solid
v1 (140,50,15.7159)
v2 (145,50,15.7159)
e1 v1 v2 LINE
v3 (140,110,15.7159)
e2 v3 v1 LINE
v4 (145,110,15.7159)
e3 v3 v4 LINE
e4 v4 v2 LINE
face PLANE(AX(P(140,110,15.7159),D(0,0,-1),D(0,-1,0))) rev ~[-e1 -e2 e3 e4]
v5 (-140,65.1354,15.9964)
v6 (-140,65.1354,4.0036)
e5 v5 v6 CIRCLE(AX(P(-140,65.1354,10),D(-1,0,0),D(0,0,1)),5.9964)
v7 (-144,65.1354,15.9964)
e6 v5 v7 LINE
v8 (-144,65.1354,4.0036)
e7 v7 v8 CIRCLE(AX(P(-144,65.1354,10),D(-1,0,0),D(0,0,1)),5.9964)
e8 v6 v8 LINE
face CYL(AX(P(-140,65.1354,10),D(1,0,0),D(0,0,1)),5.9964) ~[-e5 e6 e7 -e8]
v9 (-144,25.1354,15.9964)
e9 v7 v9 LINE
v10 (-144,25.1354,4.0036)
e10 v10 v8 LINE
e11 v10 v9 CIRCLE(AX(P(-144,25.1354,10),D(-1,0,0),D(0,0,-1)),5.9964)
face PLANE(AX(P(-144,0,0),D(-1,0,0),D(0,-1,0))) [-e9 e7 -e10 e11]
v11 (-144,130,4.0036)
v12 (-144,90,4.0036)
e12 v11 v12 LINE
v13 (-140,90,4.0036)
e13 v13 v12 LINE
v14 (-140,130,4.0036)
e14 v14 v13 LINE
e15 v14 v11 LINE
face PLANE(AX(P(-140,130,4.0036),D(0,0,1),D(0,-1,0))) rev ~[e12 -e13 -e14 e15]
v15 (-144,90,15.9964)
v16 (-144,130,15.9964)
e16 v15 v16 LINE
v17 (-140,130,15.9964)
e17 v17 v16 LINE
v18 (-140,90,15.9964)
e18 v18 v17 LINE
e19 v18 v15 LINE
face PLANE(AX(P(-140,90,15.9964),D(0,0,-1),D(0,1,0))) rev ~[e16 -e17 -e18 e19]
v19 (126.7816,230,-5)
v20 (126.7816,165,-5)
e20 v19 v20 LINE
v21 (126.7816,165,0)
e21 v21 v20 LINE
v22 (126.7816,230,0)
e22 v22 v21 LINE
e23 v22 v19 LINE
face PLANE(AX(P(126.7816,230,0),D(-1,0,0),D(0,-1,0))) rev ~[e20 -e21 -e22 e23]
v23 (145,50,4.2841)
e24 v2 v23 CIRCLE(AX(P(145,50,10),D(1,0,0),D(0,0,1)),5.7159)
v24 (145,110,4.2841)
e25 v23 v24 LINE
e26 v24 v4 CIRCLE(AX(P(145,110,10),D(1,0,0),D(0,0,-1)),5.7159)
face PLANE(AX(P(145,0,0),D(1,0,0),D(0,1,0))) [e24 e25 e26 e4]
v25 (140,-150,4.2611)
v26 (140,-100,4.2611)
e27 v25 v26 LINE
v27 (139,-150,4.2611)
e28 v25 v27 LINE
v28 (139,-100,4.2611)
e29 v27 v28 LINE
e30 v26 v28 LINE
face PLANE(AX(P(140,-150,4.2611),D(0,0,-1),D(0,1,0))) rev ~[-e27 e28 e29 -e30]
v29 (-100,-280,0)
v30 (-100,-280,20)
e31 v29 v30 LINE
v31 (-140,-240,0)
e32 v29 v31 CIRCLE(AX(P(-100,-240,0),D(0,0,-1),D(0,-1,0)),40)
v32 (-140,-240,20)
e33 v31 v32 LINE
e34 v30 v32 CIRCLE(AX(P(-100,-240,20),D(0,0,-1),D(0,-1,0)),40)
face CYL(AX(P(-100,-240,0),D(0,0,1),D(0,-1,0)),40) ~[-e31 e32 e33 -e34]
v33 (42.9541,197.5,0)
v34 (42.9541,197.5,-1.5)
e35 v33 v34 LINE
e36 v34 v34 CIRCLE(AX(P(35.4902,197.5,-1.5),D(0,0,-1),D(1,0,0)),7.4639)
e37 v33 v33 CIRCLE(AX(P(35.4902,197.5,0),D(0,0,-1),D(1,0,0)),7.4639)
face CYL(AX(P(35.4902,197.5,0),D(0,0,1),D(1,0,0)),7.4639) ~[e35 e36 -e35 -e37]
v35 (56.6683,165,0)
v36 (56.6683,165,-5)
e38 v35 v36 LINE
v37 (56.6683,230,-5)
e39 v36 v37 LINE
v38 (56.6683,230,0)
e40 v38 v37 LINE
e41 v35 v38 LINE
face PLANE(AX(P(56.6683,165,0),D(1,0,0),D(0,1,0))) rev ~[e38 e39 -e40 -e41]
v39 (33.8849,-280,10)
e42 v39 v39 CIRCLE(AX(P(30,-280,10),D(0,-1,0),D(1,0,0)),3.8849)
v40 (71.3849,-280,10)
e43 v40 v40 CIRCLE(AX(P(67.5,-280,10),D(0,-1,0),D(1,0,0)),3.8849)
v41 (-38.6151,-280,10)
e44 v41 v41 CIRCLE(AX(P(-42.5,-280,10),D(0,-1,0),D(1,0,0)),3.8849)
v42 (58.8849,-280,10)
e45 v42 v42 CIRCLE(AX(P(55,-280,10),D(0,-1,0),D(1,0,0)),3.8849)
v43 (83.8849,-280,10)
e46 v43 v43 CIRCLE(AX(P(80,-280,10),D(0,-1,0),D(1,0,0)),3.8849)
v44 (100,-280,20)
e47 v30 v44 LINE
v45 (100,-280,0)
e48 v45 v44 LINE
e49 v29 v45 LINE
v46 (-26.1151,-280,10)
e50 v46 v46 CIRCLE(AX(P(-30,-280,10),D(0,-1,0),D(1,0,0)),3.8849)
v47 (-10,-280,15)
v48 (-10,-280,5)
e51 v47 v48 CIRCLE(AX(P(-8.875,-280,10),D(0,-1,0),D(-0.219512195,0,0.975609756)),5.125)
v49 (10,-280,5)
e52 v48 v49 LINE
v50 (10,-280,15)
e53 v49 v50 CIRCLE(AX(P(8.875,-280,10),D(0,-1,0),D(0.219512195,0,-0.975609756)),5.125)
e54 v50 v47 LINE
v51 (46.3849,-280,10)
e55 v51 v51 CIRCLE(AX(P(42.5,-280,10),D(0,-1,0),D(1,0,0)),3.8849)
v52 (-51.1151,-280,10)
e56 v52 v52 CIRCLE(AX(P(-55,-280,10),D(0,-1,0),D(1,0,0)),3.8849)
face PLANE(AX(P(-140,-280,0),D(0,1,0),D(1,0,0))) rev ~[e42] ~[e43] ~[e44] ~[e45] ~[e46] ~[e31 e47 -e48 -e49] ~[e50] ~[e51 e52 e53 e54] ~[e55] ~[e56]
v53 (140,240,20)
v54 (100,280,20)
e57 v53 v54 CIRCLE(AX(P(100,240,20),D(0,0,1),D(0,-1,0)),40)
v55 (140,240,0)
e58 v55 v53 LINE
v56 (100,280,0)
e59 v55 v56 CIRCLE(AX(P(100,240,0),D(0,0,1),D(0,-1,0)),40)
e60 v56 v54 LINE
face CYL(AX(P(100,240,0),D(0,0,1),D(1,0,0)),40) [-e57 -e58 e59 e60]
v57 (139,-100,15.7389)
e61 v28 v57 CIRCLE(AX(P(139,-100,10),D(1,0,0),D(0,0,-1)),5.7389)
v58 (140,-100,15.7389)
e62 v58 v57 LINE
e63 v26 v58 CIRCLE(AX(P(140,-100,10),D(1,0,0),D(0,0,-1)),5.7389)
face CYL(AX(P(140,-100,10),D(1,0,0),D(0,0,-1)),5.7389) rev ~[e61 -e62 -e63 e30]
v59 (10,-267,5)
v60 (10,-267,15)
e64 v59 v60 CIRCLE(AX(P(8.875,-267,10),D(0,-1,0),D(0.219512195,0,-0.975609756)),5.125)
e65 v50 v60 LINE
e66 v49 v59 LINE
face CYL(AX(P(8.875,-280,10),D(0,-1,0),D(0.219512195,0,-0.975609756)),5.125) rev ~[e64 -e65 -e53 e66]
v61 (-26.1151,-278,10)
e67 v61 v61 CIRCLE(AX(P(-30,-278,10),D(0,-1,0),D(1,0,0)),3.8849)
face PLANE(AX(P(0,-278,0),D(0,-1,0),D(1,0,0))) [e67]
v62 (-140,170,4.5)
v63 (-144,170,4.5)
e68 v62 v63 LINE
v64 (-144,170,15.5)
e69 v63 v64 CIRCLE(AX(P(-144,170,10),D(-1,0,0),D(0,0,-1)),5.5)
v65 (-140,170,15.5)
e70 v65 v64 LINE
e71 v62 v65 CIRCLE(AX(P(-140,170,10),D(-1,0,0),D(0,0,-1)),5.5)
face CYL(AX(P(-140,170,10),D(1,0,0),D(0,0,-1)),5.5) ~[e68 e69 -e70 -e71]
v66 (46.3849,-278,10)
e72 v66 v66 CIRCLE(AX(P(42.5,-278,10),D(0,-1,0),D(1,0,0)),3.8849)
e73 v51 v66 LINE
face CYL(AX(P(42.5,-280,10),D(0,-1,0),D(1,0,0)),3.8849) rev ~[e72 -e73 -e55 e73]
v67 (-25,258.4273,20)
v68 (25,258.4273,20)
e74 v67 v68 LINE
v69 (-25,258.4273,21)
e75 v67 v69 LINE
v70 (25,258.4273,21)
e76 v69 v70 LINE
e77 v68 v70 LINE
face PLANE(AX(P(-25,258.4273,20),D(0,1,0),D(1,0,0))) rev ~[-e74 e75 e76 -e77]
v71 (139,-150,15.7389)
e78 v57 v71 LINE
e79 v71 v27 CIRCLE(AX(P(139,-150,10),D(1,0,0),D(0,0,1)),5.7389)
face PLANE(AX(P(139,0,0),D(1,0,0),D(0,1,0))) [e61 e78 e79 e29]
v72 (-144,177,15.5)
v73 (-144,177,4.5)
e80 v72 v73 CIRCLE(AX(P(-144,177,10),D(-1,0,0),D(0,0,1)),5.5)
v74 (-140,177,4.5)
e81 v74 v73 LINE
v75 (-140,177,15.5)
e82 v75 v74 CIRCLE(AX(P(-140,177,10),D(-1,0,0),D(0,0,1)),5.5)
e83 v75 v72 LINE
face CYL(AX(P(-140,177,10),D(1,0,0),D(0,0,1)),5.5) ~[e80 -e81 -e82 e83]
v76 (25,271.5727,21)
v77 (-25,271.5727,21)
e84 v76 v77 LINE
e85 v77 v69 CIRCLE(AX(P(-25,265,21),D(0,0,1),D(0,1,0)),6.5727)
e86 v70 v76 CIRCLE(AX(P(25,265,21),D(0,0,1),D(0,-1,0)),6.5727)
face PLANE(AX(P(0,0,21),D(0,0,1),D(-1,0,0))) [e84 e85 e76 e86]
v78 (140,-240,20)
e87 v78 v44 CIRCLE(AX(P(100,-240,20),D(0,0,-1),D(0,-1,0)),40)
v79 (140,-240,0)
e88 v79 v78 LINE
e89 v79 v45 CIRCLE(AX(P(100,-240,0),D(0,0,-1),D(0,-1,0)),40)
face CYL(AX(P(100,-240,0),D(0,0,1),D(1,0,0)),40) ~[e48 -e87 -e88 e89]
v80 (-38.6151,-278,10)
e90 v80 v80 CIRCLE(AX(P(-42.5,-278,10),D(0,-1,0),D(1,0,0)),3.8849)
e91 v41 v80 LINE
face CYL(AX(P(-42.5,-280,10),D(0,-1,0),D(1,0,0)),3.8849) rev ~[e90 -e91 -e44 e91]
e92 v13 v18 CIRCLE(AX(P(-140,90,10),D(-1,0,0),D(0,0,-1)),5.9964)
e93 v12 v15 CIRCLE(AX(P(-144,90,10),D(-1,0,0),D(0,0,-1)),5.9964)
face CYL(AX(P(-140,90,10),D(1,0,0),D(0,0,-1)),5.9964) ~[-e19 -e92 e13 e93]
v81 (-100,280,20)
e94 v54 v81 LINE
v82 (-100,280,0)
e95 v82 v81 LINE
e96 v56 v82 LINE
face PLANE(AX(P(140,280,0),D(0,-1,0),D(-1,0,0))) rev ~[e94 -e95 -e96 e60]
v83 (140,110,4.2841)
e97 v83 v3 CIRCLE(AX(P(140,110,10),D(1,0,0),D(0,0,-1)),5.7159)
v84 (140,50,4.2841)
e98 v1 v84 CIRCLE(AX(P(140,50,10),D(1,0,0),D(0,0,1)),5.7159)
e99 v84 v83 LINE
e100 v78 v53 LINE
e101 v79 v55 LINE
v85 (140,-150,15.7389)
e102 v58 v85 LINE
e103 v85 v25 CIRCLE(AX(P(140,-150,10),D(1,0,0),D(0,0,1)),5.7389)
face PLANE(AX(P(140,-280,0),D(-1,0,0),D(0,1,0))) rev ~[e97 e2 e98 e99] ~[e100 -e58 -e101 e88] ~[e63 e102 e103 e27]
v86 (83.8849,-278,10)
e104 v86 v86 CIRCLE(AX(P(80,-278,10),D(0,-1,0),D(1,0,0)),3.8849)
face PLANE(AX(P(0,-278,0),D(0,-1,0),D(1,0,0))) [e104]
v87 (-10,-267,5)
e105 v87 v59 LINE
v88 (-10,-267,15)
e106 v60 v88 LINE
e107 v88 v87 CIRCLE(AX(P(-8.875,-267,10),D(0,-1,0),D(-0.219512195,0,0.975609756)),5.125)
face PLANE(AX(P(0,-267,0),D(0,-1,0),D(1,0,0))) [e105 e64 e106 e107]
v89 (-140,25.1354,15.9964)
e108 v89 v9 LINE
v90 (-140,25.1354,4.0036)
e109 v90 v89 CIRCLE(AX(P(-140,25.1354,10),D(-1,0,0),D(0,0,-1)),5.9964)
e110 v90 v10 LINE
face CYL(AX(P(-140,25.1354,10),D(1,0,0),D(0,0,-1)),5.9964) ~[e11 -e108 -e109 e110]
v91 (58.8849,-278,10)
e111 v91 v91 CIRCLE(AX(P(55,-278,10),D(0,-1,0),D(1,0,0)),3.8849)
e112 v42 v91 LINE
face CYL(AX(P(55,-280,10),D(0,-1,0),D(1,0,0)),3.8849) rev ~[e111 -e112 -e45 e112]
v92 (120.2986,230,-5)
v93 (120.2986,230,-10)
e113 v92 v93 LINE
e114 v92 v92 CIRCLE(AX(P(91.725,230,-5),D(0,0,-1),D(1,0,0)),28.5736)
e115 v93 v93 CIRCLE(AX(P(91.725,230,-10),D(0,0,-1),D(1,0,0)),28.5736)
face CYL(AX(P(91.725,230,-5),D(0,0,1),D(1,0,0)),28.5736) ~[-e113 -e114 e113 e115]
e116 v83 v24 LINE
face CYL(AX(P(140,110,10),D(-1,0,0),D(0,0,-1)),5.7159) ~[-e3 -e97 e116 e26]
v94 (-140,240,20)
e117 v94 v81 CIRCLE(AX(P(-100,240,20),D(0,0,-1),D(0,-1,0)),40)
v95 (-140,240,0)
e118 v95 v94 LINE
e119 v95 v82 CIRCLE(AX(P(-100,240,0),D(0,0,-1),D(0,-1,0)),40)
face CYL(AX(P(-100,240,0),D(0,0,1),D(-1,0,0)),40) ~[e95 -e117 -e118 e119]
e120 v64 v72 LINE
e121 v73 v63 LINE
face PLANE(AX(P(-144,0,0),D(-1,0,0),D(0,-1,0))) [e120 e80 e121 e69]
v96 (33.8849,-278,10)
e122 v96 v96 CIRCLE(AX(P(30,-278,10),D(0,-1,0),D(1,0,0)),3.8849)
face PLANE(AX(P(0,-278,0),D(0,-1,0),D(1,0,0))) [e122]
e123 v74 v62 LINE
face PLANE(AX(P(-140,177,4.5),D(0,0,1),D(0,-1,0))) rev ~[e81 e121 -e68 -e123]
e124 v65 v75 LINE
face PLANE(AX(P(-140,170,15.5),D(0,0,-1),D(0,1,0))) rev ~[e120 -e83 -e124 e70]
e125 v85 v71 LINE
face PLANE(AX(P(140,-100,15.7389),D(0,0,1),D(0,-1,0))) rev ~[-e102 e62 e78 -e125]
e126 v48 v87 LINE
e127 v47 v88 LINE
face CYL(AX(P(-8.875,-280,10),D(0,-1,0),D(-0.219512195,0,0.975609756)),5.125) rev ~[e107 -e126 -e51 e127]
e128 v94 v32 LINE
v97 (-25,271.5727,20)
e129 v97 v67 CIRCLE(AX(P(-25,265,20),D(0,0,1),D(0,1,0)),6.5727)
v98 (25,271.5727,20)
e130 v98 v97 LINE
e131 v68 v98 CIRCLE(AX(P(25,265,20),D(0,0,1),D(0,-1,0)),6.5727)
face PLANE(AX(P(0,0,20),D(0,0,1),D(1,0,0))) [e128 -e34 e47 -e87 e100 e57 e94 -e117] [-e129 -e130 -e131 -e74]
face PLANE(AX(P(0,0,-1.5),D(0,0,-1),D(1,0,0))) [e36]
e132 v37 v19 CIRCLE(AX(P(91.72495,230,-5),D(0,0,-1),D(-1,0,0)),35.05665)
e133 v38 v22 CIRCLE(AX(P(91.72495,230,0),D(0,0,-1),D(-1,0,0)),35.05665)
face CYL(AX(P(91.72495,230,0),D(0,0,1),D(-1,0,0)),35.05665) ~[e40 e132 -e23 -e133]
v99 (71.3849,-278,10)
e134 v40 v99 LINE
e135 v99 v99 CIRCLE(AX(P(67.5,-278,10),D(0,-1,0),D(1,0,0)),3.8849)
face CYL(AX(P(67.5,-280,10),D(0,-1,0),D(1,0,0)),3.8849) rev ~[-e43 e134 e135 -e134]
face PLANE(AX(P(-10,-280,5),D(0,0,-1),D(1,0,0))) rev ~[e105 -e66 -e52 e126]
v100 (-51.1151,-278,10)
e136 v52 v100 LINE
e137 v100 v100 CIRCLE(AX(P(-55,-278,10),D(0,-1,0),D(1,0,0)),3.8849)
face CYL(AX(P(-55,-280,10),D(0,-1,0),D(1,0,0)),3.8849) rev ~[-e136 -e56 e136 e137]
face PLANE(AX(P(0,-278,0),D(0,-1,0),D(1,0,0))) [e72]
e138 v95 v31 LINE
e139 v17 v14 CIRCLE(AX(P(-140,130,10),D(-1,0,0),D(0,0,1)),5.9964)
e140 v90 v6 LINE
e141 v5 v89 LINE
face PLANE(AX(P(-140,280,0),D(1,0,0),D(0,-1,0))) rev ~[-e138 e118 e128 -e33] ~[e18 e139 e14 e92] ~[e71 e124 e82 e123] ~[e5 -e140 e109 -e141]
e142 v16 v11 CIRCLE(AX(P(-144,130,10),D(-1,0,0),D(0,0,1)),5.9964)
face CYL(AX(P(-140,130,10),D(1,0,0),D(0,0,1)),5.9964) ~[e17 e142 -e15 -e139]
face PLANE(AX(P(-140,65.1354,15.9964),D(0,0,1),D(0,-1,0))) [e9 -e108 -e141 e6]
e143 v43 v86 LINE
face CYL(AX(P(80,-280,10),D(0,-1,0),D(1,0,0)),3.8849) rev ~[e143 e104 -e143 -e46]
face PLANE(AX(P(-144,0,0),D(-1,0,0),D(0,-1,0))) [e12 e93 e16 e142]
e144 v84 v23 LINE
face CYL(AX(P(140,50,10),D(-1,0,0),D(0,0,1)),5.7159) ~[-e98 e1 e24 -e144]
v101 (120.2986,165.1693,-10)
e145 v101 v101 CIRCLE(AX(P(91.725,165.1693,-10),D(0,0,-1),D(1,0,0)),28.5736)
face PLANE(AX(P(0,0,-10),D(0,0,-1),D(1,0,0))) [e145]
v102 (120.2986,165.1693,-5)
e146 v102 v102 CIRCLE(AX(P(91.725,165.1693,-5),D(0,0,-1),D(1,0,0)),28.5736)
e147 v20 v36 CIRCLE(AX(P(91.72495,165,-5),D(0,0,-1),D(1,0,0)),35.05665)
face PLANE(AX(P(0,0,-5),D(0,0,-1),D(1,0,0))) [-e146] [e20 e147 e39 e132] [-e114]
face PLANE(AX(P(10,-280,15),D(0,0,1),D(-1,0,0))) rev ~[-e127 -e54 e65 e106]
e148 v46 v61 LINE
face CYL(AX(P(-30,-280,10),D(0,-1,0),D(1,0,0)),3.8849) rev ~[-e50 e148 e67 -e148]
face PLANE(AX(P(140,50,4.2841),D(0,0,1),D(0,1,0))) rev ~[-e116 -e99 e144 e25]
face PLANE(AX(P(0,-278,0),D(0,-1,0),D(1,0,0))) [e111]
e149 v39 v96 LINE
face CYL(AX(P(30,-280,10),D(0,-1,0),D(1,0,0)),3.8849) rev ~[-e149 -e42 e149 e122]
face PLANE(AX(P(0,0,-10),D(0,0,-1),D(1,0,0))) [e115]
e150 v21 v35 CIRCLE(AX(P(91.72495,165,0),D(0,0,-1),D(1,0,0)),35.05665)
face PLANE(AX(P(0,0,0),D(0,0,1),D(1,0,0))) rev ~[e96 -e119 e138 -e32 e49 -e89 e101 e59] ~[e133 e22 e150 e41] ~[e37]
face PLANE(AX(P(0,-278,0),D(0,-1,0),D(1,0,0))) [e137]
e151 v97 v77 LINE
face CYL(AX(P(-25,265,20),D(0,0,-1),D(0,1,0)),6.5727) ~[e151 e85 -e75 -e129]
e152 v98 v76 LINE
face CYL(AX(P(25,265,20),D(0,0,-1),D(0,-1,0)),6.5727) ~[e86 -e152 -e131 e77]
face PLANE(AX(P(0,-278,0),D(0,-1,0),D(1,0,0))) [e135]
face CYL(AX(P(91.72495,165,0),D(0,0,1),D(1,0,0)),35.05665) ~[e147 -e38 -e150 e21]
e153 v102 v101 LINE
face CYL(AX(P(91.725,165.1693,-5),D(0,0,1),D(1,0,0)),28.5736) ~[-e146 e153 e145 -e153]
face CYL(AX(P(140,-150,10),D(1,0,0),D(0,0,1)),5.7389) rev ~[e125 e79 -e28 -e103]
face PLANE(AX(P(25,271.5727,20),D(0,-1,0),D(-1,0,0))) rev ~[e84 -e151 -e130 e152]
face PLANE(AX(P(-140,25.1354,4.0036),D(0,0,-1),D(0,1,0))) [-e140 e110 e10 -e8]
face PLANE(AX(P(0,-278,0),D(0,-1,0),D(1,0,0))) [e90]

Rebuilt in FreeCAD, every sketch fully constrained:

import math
import FreeCAD as App
import Part
import Sketcher
from FreeCAD import Vector


def edges_at(feature, points):
    """Names of the edges that pass closest to the given points."""
    edges = feature.Shape.Edges
    near = lambda p: min(range(len(edges)), key=lambda i: edges[i].distToShape(Part.Vertex(*p))[0])
    return sorted({f"Edge{near(p) + 1}" for p in points})

doc = App.newDocument("Part")
body = doc.addObject("PartDesign::Body", "Body")

sketch1 = body.newObject("Sketcher::SketchObject", "Sketch")
sketch1.AttachmentSupport = (doc.getObject("XY_Plane"), [""])
sketch1.MapMode = "FlatFace"
sketch1.addGeometry(Part.LineSegment(Vector(140, -280, 0), Vector(140, 280, 0)), False)
sketch1.addGeometry(Part.LineSegment(Vector(140, 280, 0), Vector(-140, 280, 0)), False)
sketch1.addGeometry(Part.LineSegment(Vector(-140, 280, 0), Vector(-140, -280, 0)), False)
sketch1.addGeometry(Part.LineSegment(Vector(-140, -280, 0), Vector(140, -280, 0)), False)
sketch1.addConstraint(Sketcher.Constraint("Coincident", 0, 2, 1, 1))
sketch1.addConstraint(Sketcher.Constraint("Coincident", 1, 2, 2, 1))
sketch1.addConstraint(Sketcher.Constraint("Coincident", 2, 2, 3, 1))
sketch1.addConstraint(Sketcher.Constraint("Coincident", 3, 2, 0, 1))
sketch1.addConstraint(Sketcher.Constraint("Vertical", 0))
sketch1.addConstraint(Sketcher.Constraint("Horizontal", 1))
sketch1.addConstraint(Sketcher.Constraint("Vertical", 2))
sketch1.addConstraint(Sketcher.Constraint("Horizontal", 3))
sketch1.addConstraint(Sketcher.Constraint("Symmetric", 0, 2, 2, 2, -1, 1))
sketch1.addConstraint(Sketcher.Constraint("DistanceX", 1, 2, 1, 1, 280.0))
sketch1.addConstraint(Sketcher.Constraint("DistanceY", -1, 1, 0, 2, 280.0))
pad1 = body.newObject("PartDesign::Pad", "Pad")
pad1.Profile = sketch1
pad1.Length = 20
doc.recompute()

fillet = body.newObject("PartDesign::Fillet", "Fillet")
fillet.Base = (pad1, edges_at(pad1, [
    (140, -280, 10),
    (-140, -280, 10),
    (140, 280, 10),
    (-140, 280, 10),
]))
fillet.Radius = 40

sketch2 = body.newObject("Sketcher::SketchObject", "Sketch001")
sketch2.AttachmentSupport = (doc.getObject("XZ_Plane"), [""])
sketch2.MapMode = "FlatFace"
sketch2.AttachmentOffset = App.Placement(Vector(0, 0, 280), App.Rotation())
sketch2.addGeometry(Part.ArcOfCircle(Part.Circle(Vector(8.875, 10, 0), Vector(0, 0, 1), 5.125), math.radians(-77.319617), math.radians(77.319617)), False)
sketch2.addGeometry(Part.LineSegment(Vector(10, 15, 0), Vector(-10, 15, 0)), False)
sketch2.addGeometry(Part.ArcOfCircle(Part.Circle(Vector(-8.875, 10, 0), Vector(0, 0, 1), 5.125), math.radians(102.680383), math.radians(257.319617)), False)
sketch2.addGeometry(Part.LineSegment(Vector(-10, 5, 0), Vector(10, 5, 0)), False)
sketch2.addConstraint(Sketcher.Constraint("Coincident", 0, 2, 1, 1))
sketch2.addConstraint(Sketcher.Constraint("Coincident", 1, 2, 2, 1))
sketch2.addConstraint(Sketcher.Constraint("Coincident", 2, 2, 3, 1))
sketch2.addConstraint(Sketcher.Constraint("Coincident", 3, 2, 0, 1))
sketch2.addConstraint(Sketcher.Constraint("Horizontal", 1))
sketch2.addConstraint(Sketcher.Constraint("Horizontal", 3))
sketch2.addConstraint(Sketcher.Constraint("Equal", 0, 2))
sketch2.addConstraint(Sketcher.Constraint("Symmetric", 0, 3, 2, 3, -2))
sketch2.addConstraint(Sketcher.Constraint("Vertical", 1, 2, 2, 2))
sketch2.addConstraint(Sketcher.Constraint("DistanceX", 1, 2, 1, 1, 20.0))
sketch2.addConstraint(Sketcher.Constraint("DistanceY", -1, 1, 0, 3, 10.0))
sketch2.addConstraint(Sketcher.Constraint("DistanceY", -1, 1, 2, 2, 5.0))
sketch2.addConstraint(Sketcher.Constraint("Radius", 0, 5.125))
pocket1 = body.newObject("PartDesign::Pocket", "Pocket")
pocket1.Profile = sketch2
pocket1.Length = 13

sketch3 = body.newObject("Sketcher::SketchObject", "Sketch002")
sketch3.AttachmentSupport = (doc.getObject("XZ_Plane"), [""])
sketch3.MapMode = "FlatFace"
sketch3.AttachmentOffset = App.Placement(Vector(0, 0, 280), App.Rotation())
sketch3.addGeometry(Part.Circle(Vector(-30, 10, 0), Vector(0, 0, 1), 3.8849), False)
sketch3.addGeometry(Part.Circle(Vector(-42.5, 10, 0), Vector(0, 0, 1), 3.8849), False)
sketch3.addGeometry(Part.Circle(Vector(-55, 10, 0), Vector(0, 0, 1), 3.8849), False)
sketch3.addGeometry(Part.Circle(Vector(30, 10, 0), Vector(0, 0, 1), 3.8849), False)
sketch3.addGeometry(Part.Circle(Vector(42.5, 10, 0), Vector(0, 0, 1), 3.8849), False)
sketch3.addGeometry(Part.Circle(Vector(55, 10, 0), Vector(0, 0, 1), 3.8849), False)
sketch3.addGeometry(Part.Circle(Vector(67.5, 10, 0), Vector(0, 0, 1), 3.8849), False)
sketch3.addGeometry(Part.Circle(Vector(80, 10, 0), Vector(0, 0, 1), 3.8849), False)
sketch3.addConstraint(Sketcher.Constraint("Equal", 0, 1))
sketch3.addConstraint(Sketcher.Constraint("Equal", 1, 2))
sketch3.addConstraint(Sketcher.Constraint("Equal", 2, 3))
sketch3.addConstraint(Sketcher.Constraint("Equal", 3, 4))
sketch3.addConstraint(Sketcher.Constraint("Equal", 4, 5))
sketch3.addConstraint(Sketcher.Constraint("Equal", 5, 6))
sketch3.addConstraint(Sketcher.Constraint("Equal", 6, 7))
sketch3.addConstraint(Sketcher.Constraint("Symmetric", 0, 3, 3, 3, -2))
sketch3.addConstraint(Sketcher.Constraint("Symmetric", 1, 3, 4, 3, -2))
sketch3.addConstraint(Sketcher.Constraint("Symmetric", 2, 3, 5, 3, -2))
sketch3.addConstraint(Sketcher.Constraint("Horizontal", 0, 3, 1, 3))
sketch3.addConstraint(Sketcher.Constraint("Horizontal", 1, 3, 2, 3))
sketch3.addConstraint(Sketcher.Constraint("Horizontal", 5, 3, 6, 3))
sketch3.addConstraint(Sketcher.Constraint("Horizontal", 6, 3, 7, 3))
sketch3.addConstraint(Sketcher.Constraint("DistanceY", -1, 1, 0, 3, 10.0))
sketch3.addConstraint(Sketcher.Constraint("DistanceX", 2, 3, 0, 3, 25.0))
sketch3.addConstraint(Sketcher.Constraint("DistanceX", 4, 3, 6, 3, 25.0))
sketch3.addConstraint(Sketcher.Constraint("DistanceX", 5, 3, 7, 3, 25.0))
sketch3.addConstraint(Sketcher.Constraint("DistanceX", 0, 3, -1, 1, 30.0))
sketch3.addConstraint(Sketcher.Constraint("DistanceX", 1, 3, 4, 3, 85.0))
sketch3.addConstraint(Sketcher.Constraint("Diameter", 0, 7.7698))
pocket2 = body.newObject("PartDesign::Pocket", "Pocket001")
pocket2.Profile = sketch3
pocket2.Length = 2

sketch4 = body.newObject("Sketcher::SketchObject", "Sketch003")
sketch4.AttachmentSupport = (doc.getObject("YZ_Plane"), [""])
sketch4.MapMode = "FlatFace"
sketch4.AttachmentOffset = App.Placement(Vector(0, 0, 140), App.Rotation())
sketch4.addGeometry(Part.ArcOfCircle(Part.Circle(Vector(-150, 10, 0), Vector(0, 0, 1), 5.7389), math.radians(90), math.radians(270)), False)
sketch4.addGeometry(Part.LineSegment(Vector(-150, 4.2611, 0), Vector(-100, 4.2611, 0)), False)
sketch4.addGeometry(Part.ArcOfCircle(Part.Circle(Vector(-100, 10, 0), Vector(0, 0, 1), 5.7389), math.radians(-90), math.radians(90)), False)
sketch4.addGeometry(Part.LineSegment(Vector(-100, 15.7389, 0), Vector(-150, 15.7389, 0)), False)
sketch4.addConstraint(Sketcher.Constraint("Tangent", 0, 2, 1, 1))
sketch4.addConstraint(Sketcher.Constraint("Tangent", 1, 2, 2, 1))
sketch4.addConstraint(Sketcher.Constraint("Tangent", 2, 2, 3, 1))
sketch4.addConstraint(Sketcher.Constraint("Tangent", 3, 2, 0, 1))
sketch4.addConstraint(Sketcher.Constraint("Horizontal", 1))
sketch4.addConstraint(Sketcher.Constraint("Horizontal", 3))
sketch4.addConstraint(Sketcher.Constraint("DistanceX", 1, 1, 1, 2, 50.0))
sketch4.addConstraint(Sketcher.Constraint("DistanceX", 0, 3, -1, 1, 150.0))
sketch4.addConstraint(Sketcher.Constraint("DistanceY", -1, 1, 0, 3, 10.0))
sketch4.addConstraint(Sketcher.Constraint("Radius", 0, 5.739))
pocket3 = body.newObject("PartDesign::Pocket", "Pocket002")
pocket3.Profile = sketch4
pocket3.Length = 1

sketch5 = body.newObject("Sketcher::SketchObject", "Sketch004")
sketch5.AttachmentSupport = (doc.getObject("YZ_Plane"), [""])
sketch5.MapMode = "FlatFace"
sketch5.AttachmentOffset = App.Placement(Vector(0, 0, 140), App.Rotation())
sketch5.addGeometry(Part.ArcOfCircle(Part.Circle(Vector(50, 10, 0), Vector(0, 0, 1), 5.7159), math.radians(90), math.radians(270)), False)
sketch5.addGeometry(Part.LineSegment(Vector(50, 4.2841, 0), Vector(110, 4.2841, 0)), False)
sketch5.addGeometry(Part.ArcOfCircle(Part.Circle(Vector(110, 10, 0), Vector(0, 0, 1), 5.7159), math.radians(-90), math.radians(90)), False)
sketch5.addGeometry(Part.LineSegment(Vector(110, 15.7159, 0), Vector(50, 15.7159, 0)), False)
sketch5.addConstraint(Sketcher.Constraint("Tangent", 0, 2, 1, 1))
sketch5.addConstraint(Sketcher.Constraint("Tangent", 1, 2, 2, 1))
sketch5.addConstraint(Sketcher.Constraint("Tangent", 2, 2, 3, 1))
sketch5.addConstraint(Sketcher.Constraint("Tangent", 3, 2, 0, 1))
sketch5.addConstraint(Sketcher.Constraint("Horizontal", 1))
sketch5.addConstraint(Sketcher.Constraint("Horizontal", 3))
sketch5.addConstraint(Sketcher.Constraint("Radius", 0, 5.716))
sketch5.addConstraint(Sketcher.Constraint("DistanceX", 1, 1, 1, 2, 60.0))
sketch5.addConstraint(Sketcher.Constraint("DistanceX", -1, 1, 0, 3, 50.0))
sketch5.addConstraint(Sketcher.Constraint("DistanceY", -1, 1, 0, 3, 10.0))
pad2 = body.newObject("PartDesign::Pad", "Pad001")
pad2.Profile = sketch5
pad2.Length = 5

sketch6 = body.newObject("Sketcher::SketchObject", "Sketch005")
sketch6.AttachmentSupport = (doc.getObject("YZ_Plane"), [""])
sketch6.MapMode = "FlatFace"
sketch6.AttachmentOffset = App.Placement(Vector(0, 0, -140), App.Rotation())
sketch6.addGeometry(Part.ArcOfCircle(Part.Circle(Vector(130, 10, 0), Vector(0, 0, 1), 5.9964), math.radians(-90), math.radians(90)), False)
sketch6.addGeometry(Part.LineSegment(Vector(130, 4.0036, 0), Vector(90, 4.0036, 0)), False)
sketch6.addGeometry(Part.ArcOfCircle(Part.Circle(Vector(90, 10, 0), Vector(0, 0, 1), 5.9964), math.radians(90), math.radians(270)), False)
sketch6.addGeometry(Part.LineSegment(Vector(90, 15.9964, 0), Vector(130, 15.9964, 0)), False)
sketch6.addGeometry(Part.LineSegment(Vector(25.1354, 15.9964, 0), Vector(65.1354, 15.9964, 0)), False)
sketch6.addGeometry(Part.ArcOfCircle(Part.Circle(Vector(65.1354, 10, 0), Vector(0, 0, 1), 5.9964), math.radians(-90), math.radians(90)), False)
sketch6.addGeometry(Part.LineSegment(Vector(65.1354, 4.0036, 0), Vector(25.1354, 4.0036, 0)), False)
sketch6.addGeometry(Part.ArcOfCircle(Part.Circle(Vector(25.1354, 10, 0), Vector(0, 0, 1), 5.9964), math.radians(90), math.radians(270)), False)
sketch6.addGeometry(Part.ArcOfCircle(Part.Circle(Vector(177, 10, 0), Vector(0, 0, 1), 5.5), math.radians(-90), math.radians(90)), False)
sketch6.addGeometry(Part.LineSegment(Vector(177, 4.5, 0), Vector(170, 4.5, 0)), False)
sketch6.addGeometry(Part.ArcOfCircle(Part.Circle(Vector(170, 10, 0), Vector(0, 0, 1), 5.5), math.radians(90), math.radians(270)), False)
sketch6.addGeometry(Part.LineSegment(Vector(170, 15.5, 0), Vector(177, 15.5, 0)), False)
sketch6.addConstraint(Sketcher.Constraint("Tangent", 0, 1, 1, 1))
sketch6.addConstraint(Sketcher.Constraint("Tangent", 1, 2, 2, 2))
sketch6.addConstraint(Sketcher.Constraint("Tangent", 2, 1, 3, 1))
sketch6.addConstraint(Sketcher.Constraint("Tangent", 3, 2, 0, 2))
sketch6.addConstraint(Sketcher.Constraint("Tangent", 4, 2, 5, 2))
sketch6.addConstraint(Sketcher.Constraint("Tangent", 5, 1, 6, 1))
sketch6.addConstraint(Sketcher.Constraint("Tangent", 6, 2, 7, 2))
sketch6.addConstraint(Sketcher.Constraint("Tangent", 7, 1, 4, 1))
sketch6.addConstraint(Sketcher.Constraint("Tangent", 8, 1, 9, 1))
sketch6.addConstraint(Sketcher.Constraint("Tangent", 9, 2, 10, 2))
sketch6.addConstraint(Sketcher.Constraint("Tangent", 10, 1, 11, 1))
sketch6.addConstraint(Sketcher.Constraint("Tangent", 11, 2, 8, 2))
sketch6.addConstraint(Sketcher.Constraint("Horizontal", 1))
sketch6.addConstraint(Sketcher.Constraint("Horizontal", 3))
sketch6.addConstraint(Sketcher.Constraint("Horizontal", 4))
sketch6.addConstraint(Sketcher.Constraint("Horizontal", 6))
sketch6.addConstraint(Sketcher.Constraint("Horizontal", 9))
sketch6.addConstraint(Sketcher.Constraint("Horizontal", 11))
sketch6.addConstraint(Sketcher.Constraint("Equal", 2, 5))
sketch6.addConstraint(Sketcher.Constraint("Horizontal", 2, 3, 5, 3))
sketch6.addConstraint(Sketcher.Constraint("Horizontal", 7, 3, 8, 3))
sketch6.addConstraint(Sketcher.Constraint("Equal", 3, 4))
sketch6.addConstraint(Sketcher.Constraint("Radius", 8, 5.5))
sketch6.addConstraint(Sketcher.Constraint("DistanceX", 1, 2, 1, 1, 40.0))
sketch6.addConstraint(Sketcher.Constraint("DistanceX", 0, 3, 10, 3, 40.0))
sketch6.addConstraint(Sketcher.Constraint("DistanceX", 9, 2, 9, 1, 7.0))
sketch6.addConstraint(Sketcher.Constraint("DistanceX", -1, 1, 0, 3, 130.0))
sketch6.addConstraint(Sketcher.Constraint("DistanceY", -1, 1, 0, 3, 10.0))
sketch6.addConstraint(Sketcher.Constraint("Radius", 0, 5.9964))
sketch6.addConstraint(Sketcher.Constraint("DistanceX", -1, 1, 5, 3, 65.1354))
pad3 = body.newObject("PartDesign::Pad", "Pad002")
pad3.Profile = sketch6
pad3.Length = 4
pad3.Reversed = True

sketch7 = body.newObject("Sketcher::SketchObject", "Sketch006")
sketch7.AttachmentSupport = (doc.getObject("XY_Plane"), [""])
sketch7.MapMode = "FlatFace"
sketch7.addGeometry(Part.ArcOfCircle(Part.Circle(Vector(91.725, 230, 0), Vector(0, 0, 1), 35.0567), math.radians(0), math.radians(180)), False)
sketch7.addGeometry(Part.LineSegment(Vector(126.7816, 230, 0), Vector(126.7816, 165, 0)), False)
sketch7.addGeometry(Part.ArcOfCircle(Part.Circle(Vector(91.725, 165, 0), Vector(0, 0, 1), 35.0566), math.radians(180), math.radians(360)), False)
sketch7.addGeometry(Part.LineSegment(Vector(56.6683, 165, 0), Vector(56.6683, 230, 0)), False)
sketch7.addConstraint(Sketcher.Constraint("Tangent", 0, 1, 1, 1))
sketch7.addConstraint(Sketcher.Constraint("Tangent", 1, 2, 2, 2))
sketch7.addConstraint(Sketcher.Constraint("Tangent", 2, 1, 3, 1))
sketch7.addConstraint(Sketcher.Constraint("Tangent", 3, 2, 0, 2))
sketch7.addConstraint(Sketcher.Constraint("Vertical", 1))
sketch7.addConstraint(Sketcher.Constraint("Vertical", 3))
sketch7.addConstraint(Sketcher.Constraint("Radius", 0, 35.0567))
sketch7.addConstraint(Sketcher.Constraint("DistanceY", 1, 2, 1, 1, 65.0))
sketch7.addConstraint(Sketcher.Constraint("DistanceY", -1, 1, 0, 3, 230.0))
sketch7.addConstraint(Sketcher.Constraint("DistanceX", -1, 1, 0, 3, 91.725))
pad4 = body.newObject("PartDesign::Pad", "Pad003")
pad4.Profile = sketch7
pad4.Length = 5
pad4.Reversed = True

sketch8 = body.newObject("Sketcher::SketchObject", "Sketch007")
sketch8.AttachmentSupport = (doc.getObject("XY_Plane"), [""])
sketch8.MapMode = "FlatFace"
sketch8.AttachmentOffset = App.Placement(Vector(0, 0, -5), App.Rotation())
sketch8.addGeometry(Part.Circle(Vector(91.725, 230, 0), Vector(0, 0, 1), 28.5736), False)
sketch8.addGeometry(Part.Circle(Vector(91.725, 165.1693, 0), Vector(0, 0, 1), 28.5736), False)
sketch8.addConstraint(Sketcher.Constraint("Equal", 0, 1))
sketch8.addConstraint(Sketcher.Constraint("Vertical", 0, 3, 1, 3))
sketch8.addConstraint(Sketcher.Constraint("DistanceY", -1, 1, 0, 3, 230.0))
sketch8.addConstraint(Sketcher.Constraint("Diameter", 0, 57.1472))
sketch8.addConstraint(Sketcher.Constraint("DistanceX", -1, 1, 0, 3, 91.725))
sketch8.addConstraint(Sketcher.Constraint("DistanceY", -1, 1, 1, 3, 165.1693))
pad5 = body.newObject("PartDesign::Pad", "Pad004")
pad5.Profile = sketch8
pad5.Length = 5
pad5.Reversed = True

sketch9 = body.newObject("Sketcher::SketchObject", "Sketch008")
sketch9.AttachmentSupport = (doc.getObject("XY_Plane"), [""])
sketch9.MapMode = "FlatFace"
sketch9.addGeometry(Part.Circle(Vector(35.4902, 197.5, 0), Vector(0, 0, 1), 7.4639), False)
sketch9.addConstraint(Sketcher.Constraint("Diameter", 0, 14.9278))
sketch9.addConstraint(Sketcher.Constraint("DistanceY", -1, 1, 0, 3, 197.5))
sketch9.addConstraint(Sketcher.Constraint("DistanceX", -1, 1, 0, 3, 35.4902))
pad6 = body.newObject("PartDesign::Pad", "Pad005")
pad6.Profile = sketch9
pad6.Length = 1.5
pad6.Reversed = True

sketch10 = body.newObject("Sketcher::SketchObject", "Sketch009")
sketch10.AttachmentSupport = (doc.getObject("XY_Plane"), [""])
sketch10.MapMode = "FlatFace"
sketch10.AttachmentOffset = App.Placement(Vector(0, 0, 20), App.Rotation())
sketch10.addGeometry(Part.ArcOfCircle(Part.Circle(Vector(-25, 265, 0), Vector(0, 0, 1), 6.5727), math.radians(90), math.radians(270)), False)
sketch10.addGeometry(Part.LineSegment(Vector(-25, 258.4273, 0), Vector(25, 258.4273, 0)), False)
sketch10.addGeometry(Part.ArcOfCircle(Part.Circle(Vector(25, 265, 0), Vector(0, 0, 1), 6.5727), math.radians(-90), math.radians(90)), False)
sketch10.addGeometry(Part.LineSegment(Vector(25, 271.5727, 0), Vector(-25, 271.5727, 0)), False)
sketch10.addConstraint(Sketcher.Constraint("Tangent", 0, 2, 1, 1))
sketch10.addConstraint(Sketcher.Constraint("Tangent", 1, 2, 2, 1))
sketch10.addConstraint(Sketcher.Constraint("Tangent", 2, 2, 3, 1))
sketch10.addConstraint(Sketcher.Constraint("Tangent", 3, 2, 0, 1))
sketch10.addConstraint(Sketcher.Constraint("Horizontal", 1))
sketch10.addConstraint(Sketcher.Constraint("Horizontal", 3))
sketch10.addConstraint(Sketcher.Constraint("DistanceX", 1, 1, 1, 2, 50.0))
sketch10.addConstraint(Sketcher.Constraint("DistanceX", 0, 3, -1, 1, 25.0))
sketch10.addConstraint(Sketcher.Constraint("DistanceY", -1, 1, 0, 3, 265.0))
sketch10.addConstraint(Sketcher.Constraint("Radius", 0, 6.5727))
pad7 = body.newObject("PartDesign::Pad", "Pad006")
pad7.Profile = sketch10
pad7.Length = 1

doc.recompute()
